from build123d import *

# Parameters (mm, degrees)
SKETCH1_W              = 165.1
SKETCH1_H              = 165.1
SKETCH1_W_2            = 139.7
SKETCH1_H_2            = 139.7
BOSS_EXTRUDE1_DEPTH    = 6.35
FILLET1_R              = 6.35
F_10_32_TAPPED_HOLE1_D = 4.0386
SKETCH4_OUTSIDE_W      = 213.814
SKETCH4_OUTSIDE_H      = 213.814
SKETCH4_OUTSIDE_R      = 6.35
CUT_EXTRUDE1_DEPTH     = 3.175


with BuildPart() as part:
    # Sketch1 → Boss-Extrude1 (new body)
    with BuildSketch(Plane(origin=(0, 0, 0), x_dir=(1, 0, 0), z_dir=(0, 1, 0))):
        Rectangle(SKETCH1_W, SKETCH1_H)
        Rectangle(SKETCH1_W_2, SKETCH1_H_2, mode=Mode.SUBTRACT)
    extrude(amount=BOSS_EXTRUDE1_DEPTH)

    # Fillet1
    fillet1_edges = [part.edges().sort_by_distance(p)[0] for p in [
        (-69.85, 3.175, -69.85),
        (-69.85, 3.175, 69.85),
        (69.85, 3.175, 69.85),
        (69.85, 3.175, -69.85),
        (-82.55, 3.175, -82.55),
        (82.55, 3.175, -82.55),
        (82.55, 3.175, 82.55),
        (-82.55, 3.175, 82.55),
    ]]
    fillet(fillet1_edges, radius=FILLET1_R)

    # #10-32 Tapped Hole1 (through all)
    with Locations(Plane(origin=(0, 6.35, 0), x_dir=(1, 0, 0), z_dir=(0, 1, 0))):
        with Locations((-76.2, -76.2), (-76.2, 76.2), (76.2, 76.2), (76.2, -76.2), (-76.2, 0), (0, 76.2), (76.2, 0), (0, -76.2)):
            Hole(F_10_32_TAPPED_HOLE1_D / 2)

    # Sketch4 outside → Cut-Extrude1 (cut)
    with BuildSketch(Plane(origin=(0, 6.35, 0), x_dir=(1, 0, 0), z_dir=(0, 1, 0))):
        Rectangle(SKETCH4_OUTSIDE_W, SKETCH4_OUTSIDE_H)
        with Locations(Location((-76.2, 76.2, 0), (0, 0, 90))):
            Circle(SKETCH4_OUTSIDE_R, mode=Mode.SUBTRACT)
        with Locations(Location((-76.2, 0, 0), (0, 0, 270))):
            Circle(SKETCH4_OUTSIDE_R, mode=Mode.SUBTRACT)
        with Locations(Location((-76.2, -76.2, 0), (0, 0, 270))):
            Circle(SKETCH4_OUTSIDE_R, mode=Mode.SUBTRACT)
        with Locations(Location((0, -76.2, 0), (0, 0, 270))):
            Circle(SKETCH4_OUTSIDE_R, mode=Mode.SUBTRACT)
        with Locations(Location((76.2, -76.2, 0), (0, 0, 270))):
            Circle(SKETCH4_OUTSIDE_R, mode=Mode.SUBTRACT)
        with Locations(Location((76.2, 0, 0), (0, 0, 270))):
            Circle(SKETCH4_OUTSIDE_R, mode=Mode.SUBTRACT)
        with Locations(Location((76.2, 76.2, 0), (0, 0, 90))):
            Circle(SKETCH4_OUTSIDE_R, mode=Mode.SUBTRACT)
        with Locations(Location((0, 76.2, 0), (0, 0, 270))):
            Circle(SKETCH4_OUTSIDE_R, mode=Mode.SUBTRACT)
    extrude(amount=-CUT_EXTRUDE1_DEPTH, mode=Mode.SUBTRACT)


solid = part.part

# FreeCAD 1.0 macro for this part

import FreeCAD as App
import Part
import Sketcher

V = App.Vector
Q = App.Units.Quantity


def edges_at(feature, points):
    """Names of the edges that pass closest to the given points."""
    edges = feature.Shape.Edges
    near = lambda p: min(range(len(edges)), key=lambda i: edges[i].distToShape(Part.Vertex(*p))[0])
    return sorted({f"Edge{near(p) + 1}" for p in points})


def add_polygon(sketch, points):
    """Adds a closed chain of lines whose ends are joined by coincident constraints."""
    first, n = sketch.GeometryCount, len(points)
    for a, b in zip(points, points[1:] + points[:1]):
        sketch.addGeometry(Part.LineSegment(App.Vector(*a, 0), App.Vector(*b, 0)), False)
    for i in range(n):
        sketch.addConstraint(Sketcher.Constraint("Coincident", first + i, 2, first + (i + 1) % n, 1))

doc = App.newDocument("Part")
body = doc.addObject("PartDesign::Body", "Body")

# Sketch on XZ plane
sketch1 = body.newObject("Sketcher::SketchObject", "Sketch")
sketch1.AttachmentSupport = (doc.getObject("XZ_Plane"), [""])
sketch1.MapMode = "FlatFace"
add_polygon(sketch1, [(-83, -83), (-83, 83), (83, 83), (83, -83)])  # lines 0-3
add_polygon(sketch1, [(70, 70), (-70, 70), (-70, -70), (70, -70)])  # lines 4-7
sketch1.addConstraint(Sketcher.Constraint("Vertical", 0))
sketch1.addConstraint(Sketcher.Constraint("Horizontal", 1))
sketch1.addConstraint(Sketcher.Constraint("Vertical", 2))
sketch1.addConstraint(Sketcher.Constraint("Horizontal", 3))
sketch1.addConstraint(Sketcher.Constraint("Horizontal", 4))
sketch1.addConstraint(Sketcher.Constraint("Vertical", 5))
sketch1.addConstraint(Sketcher.Constraint("Horizontal", 6))
sketch1.addConstraint(Sketcher.Constraint("Vertical", 7))
sketch1.addConstraint(Sketcher.Constraint("Symmetric", 0, 2, 2, 2, -1, 1))
sketch1.addConstraint(Sketcher.Constraint("Symmetric", 4, 2, 6, 2, -1, 1))
sketch1.addConstraint(Sketcher.Constraint("Equal", 3, 0))
sketch1.addConstraint(Sketcher.Constraint("Equal", 6, 5))
sketch1.addConstraint(Sketcher.Constraint("DistanceX", 1, 1, 1, 2, Q("6.5 in")))
sketch1.addConstraint(Sketcher.Constraint("DistanceX", 4, 2, 4, 1, Q("5.5 in")))
pad1 = body.newObject("PartDesign::Pad", "Pad")
pad1.Profile = sketch1
pad1.Length = Q("0.25 in")
pad1.Reversed = True
doc.recompute()

fillet = body.newObject("PartDesign::Fillet", "Fillet")
fillet.Base = (pad1, edges_at(pad1, [
    (-69.85, 3.175, -69.85),
    (-69.85, 3.175, 69.85),
    (69.85, 3.175, 69.85),
    (69.85, 3.175, -69.85),
    (-82.55, 3.175, -82.55),
    (82.55, 3.175, -82.55),
    (82.55, 3.175, 82.55),
    (-82.55, 3.175, 82.55),
]))
fillet.Radius = Q("0.25 in")

# Sketch on XZ plane
sketch2 = body.newObject("Sketcher::SketchObject", "Sketch001")
sketch2.AttachmentSupport = (doc.getObject("XZ_Plane"), [""])
sketch2.MapMode = "FlatFace"
sketch2.AttachmentOffset = App.Placement(V(0, 0, -0.25 * 25.4), App.Rotation())
sketch2.addGeometry(Part.Circle(V(-76.2, 76.2, 0), V(0, 0, 1), 2), False)
sketch2.addGeometry(Part.Circle(V(-76.2, -76.2, 0), V(0, 0, 1), 2), False)
sketch2.addGeometry(Part.Circle(V(76.2, -76.2, 0), V(0, 0, 1), 2), False)
sketch2.addGeometry(Part.Circle(V(76.2, 76.2, 0), V(0, 0, 1), 2), False)
sketch2.addGeometry(Part.Circle(V(-76.2, 0, 0), V(0, 0, 1), 2), False)
sketch2.addGeometry(Part.Circle(V(0, -76.2, 0), V(0, 0, 1), 2), False)
sketch2.addGeometry(Part.Circle(V(76.2, 0, 0), V(0, 0, 1), 2), False)
sketch2.addGeometry(Part.Circle(V(0, 76.2, 0), V(0, 0, 1), 2), False)
sketch2.addConstraint(Sketcher.Constraint("Equal", 0, 1))
sketch2.addConstraint(Sketcher.Constraint("Equal", 1, 2))
sketch2.addConstraint(Sketcher.Constraint("Equal", 2, 3))
sketch2.addConstraint(Sketcher.Constraint("Equal", 3, 4))
sketch2.addConstraint(Sketcher.Constraint("Equal", 4, 5))
sketch2.addConstraint(Sketcher.Constraint("Equal", 5, 6))
sketch2.addConstraint(Sketcher.Constraint("Equal", 6, 7))
sketch2.addConstraint(Sketcher.Constraint("Symmetric", 0, 3, 2, 3, -1, 1))
sketch2.addConstraint(Sketcher.Constraint("Symmetric", 1, 3, 3, 3, -1, 1))
sketch2.addConstraint(Sketcher.Constraint("Symmetric", 4, 3, 6, 3, -1, 1))
sketch2.addConstraint(Sketcher.Constraint("Symmetric", 5, 3, 7, 3, -1, 1))
sketch2.addConstraint(Sketcher.Constraint("Symmetric", 1, 3, 2, 3, -2))
sketch2.addConstraint(Sketcher.Constraint("PointOnObject", 4, 3, -1))
sketch2.addConstraint(Sketcher.Constraint("PointOnObject", 5, 3, -2))
sketch2.addConstraint(Sketcher.Constraint("Horizontal", 2, 3, 5, 3))
sketch2.addConstraint(Sketcher.Constraint("Vertical", 1, 3, 4, 3))
sketch2.addConstraint(Sketcher.Constraint("Diameter", 0, Q("0.159 in")))
sketch2.addConstraint(Sketcher.Constraint("DistanceX", 0, 3, -1, 1, Q("3 in")))
sketch2.addConstraint(Sketcher.Constraint("DistanceY", -1, 1, 0, 3, Q("3 in")))
doc.recompute()
hole = body.newObject("PartDesign::Hole", "Hole")
hole.Profile = sketch2
hole.ThreadType = "None"
hole.Diameter = Q("0.159 in")
hole.DepthType = "ThroughAll"
hole.Reversed = True

# Sketch on XZ plane
sketch3 = body.newObject("Sketcher::SketchObject", "Sketch002")
sketch3.AttachmentSupport = (doc.getObject("XZ_Plane"), [""])
sketch3.MapMode = "FlatFace"
sketch3.AttachmentOffset = App.Placement(V(0, 0, -0.25 * 25.4), App.Rotation())
add_polygon(sketch3, [(-107, -107), (-107, 107), (107, 107), (107, -107)])  # lines 0-3
sketch3.addGeometry(Part.Circle(V(-76, 76, 0), V(0, 0, 1), 6), False)  # 4
sketch3.addGeometry(Part.Circle(V(0, 76, 0), V(0, 0, 1), 6), False)  # 5
sketch3.addGeometry(Part.Circle(V(76, 76, 0), V(0, 0, 1), 6), False)  # 6
sketch3.addGeometry(Part.Circle(V(-76, 0, 0), V(0, 0, 1), 6), False)  # 7
sketch3.addGeometry(Part.Circle(V(-76, -76, 0), V(0, 0, 1), 6), False)  # 8
sketch3.addGeometry(Part.Circle(V(76, 0, 0), V(0, 0, 1), 6), False)  # 9
sketch3.addGeometry(Part.Circle(V(0, -76, 0), V(0, 0, 1), 6), False)  # 10
sketch3.addGeometry(Part.Circle(V(76, -76, 0), V(0, 0, 1), 6), False)  # 11
sketch3.addConstraint(Sketcher.Constraint("Vertical", 0))
sketch3.addConstraint(Sketcher.Constraint("Horizontal", 1))
sketch3.addConstraint(Sketcher.Constraint("Vertical", 2))
sketch3.addConstraint(Sketcher.Constraint("Horizontal", 3))
sketch3.addConstraint(Sketcher.Constraint("Equal", 4, 5))
sketch3.addConstraint(Sketcher.Constraint("Equal", 5, 6))
sketch3.addConstraint(Sketcher.Constraint("Equal", 6, 7))
sketch3.addConstraint(Sketcher.Constraint("Equal", 7, 8))
sketch3.addConstraint(Sketcher.Constraint("Equal", 8, 9))
sketch3.addConstraint(Sketcher.Constraint("Equal", 9, 10))
sketch3.addConstraint(Sketcher.Constraint("Equal", 10, 11))
sketch3.addConstraint(Sketcher.Constraint("Symmetric", 6, 3, 8, 3, -1, 1))
sketch3.addConstraint(Sketcher.Constraint("Symmetric", 7, 3, 9, 3, -1, 1))
sketch3.addConstraint(Sketcher.Constraint("Symmetric", 5, 3, 10, 3, -1, 1))
sketch3.addConstraint(Sketcher.Constraint("Symmetric", 4, 3, 11, 3, -1, 1))
sketch3.addConstraint(Sketcher.Constraint("Symmetric", 0, 2, 2, 2, -1, 1))
sketch3.addConstraint(Sketcher.Constraint("Symmetric", 4, 3, 6, 3, -2))
sketch3.addConstraint(Sketcher.Constraint("PointOnObject", 5, 3, -2))
sketch3.addConstraint(Sketcher.Constraint("PointOnObject", 7, 3, -1))
sketch3.addConstraint(Sketcher.Constraint("Horizontal", 4, 3, 5, 3))
sketch3.addConstraint(Sketcher.Constraint("Vertical", 4, 3, 7, 3))
sketch3.addConstraint(Sketcher.Constraint("Equal", 3, 0))
sketch3.addConstraint(Sketcher.Constraint("Diameter", 4, Q("0.5 in")))
sketch3.addConstraint(Sketcher.Constraint("DistanceX", 4, 3, -1, 1, Q("3 in")))
sketch3.addConstraint(Sketcher.Constraint("DistanceY", -1, 1, 4, 3, Q("3 in")))
sketch3.addConstraint(Sketcher.Constraint("DistanceX", 1, 1, 1, 2, 213.814))
pocket1 = body.newObject("PartDesign::Pocket", "Pocket")
pocket1.Profile = sketch3
pocket1.Length = Q("0.125 in")
pocket1.Reversed = True

doc.recompute()
